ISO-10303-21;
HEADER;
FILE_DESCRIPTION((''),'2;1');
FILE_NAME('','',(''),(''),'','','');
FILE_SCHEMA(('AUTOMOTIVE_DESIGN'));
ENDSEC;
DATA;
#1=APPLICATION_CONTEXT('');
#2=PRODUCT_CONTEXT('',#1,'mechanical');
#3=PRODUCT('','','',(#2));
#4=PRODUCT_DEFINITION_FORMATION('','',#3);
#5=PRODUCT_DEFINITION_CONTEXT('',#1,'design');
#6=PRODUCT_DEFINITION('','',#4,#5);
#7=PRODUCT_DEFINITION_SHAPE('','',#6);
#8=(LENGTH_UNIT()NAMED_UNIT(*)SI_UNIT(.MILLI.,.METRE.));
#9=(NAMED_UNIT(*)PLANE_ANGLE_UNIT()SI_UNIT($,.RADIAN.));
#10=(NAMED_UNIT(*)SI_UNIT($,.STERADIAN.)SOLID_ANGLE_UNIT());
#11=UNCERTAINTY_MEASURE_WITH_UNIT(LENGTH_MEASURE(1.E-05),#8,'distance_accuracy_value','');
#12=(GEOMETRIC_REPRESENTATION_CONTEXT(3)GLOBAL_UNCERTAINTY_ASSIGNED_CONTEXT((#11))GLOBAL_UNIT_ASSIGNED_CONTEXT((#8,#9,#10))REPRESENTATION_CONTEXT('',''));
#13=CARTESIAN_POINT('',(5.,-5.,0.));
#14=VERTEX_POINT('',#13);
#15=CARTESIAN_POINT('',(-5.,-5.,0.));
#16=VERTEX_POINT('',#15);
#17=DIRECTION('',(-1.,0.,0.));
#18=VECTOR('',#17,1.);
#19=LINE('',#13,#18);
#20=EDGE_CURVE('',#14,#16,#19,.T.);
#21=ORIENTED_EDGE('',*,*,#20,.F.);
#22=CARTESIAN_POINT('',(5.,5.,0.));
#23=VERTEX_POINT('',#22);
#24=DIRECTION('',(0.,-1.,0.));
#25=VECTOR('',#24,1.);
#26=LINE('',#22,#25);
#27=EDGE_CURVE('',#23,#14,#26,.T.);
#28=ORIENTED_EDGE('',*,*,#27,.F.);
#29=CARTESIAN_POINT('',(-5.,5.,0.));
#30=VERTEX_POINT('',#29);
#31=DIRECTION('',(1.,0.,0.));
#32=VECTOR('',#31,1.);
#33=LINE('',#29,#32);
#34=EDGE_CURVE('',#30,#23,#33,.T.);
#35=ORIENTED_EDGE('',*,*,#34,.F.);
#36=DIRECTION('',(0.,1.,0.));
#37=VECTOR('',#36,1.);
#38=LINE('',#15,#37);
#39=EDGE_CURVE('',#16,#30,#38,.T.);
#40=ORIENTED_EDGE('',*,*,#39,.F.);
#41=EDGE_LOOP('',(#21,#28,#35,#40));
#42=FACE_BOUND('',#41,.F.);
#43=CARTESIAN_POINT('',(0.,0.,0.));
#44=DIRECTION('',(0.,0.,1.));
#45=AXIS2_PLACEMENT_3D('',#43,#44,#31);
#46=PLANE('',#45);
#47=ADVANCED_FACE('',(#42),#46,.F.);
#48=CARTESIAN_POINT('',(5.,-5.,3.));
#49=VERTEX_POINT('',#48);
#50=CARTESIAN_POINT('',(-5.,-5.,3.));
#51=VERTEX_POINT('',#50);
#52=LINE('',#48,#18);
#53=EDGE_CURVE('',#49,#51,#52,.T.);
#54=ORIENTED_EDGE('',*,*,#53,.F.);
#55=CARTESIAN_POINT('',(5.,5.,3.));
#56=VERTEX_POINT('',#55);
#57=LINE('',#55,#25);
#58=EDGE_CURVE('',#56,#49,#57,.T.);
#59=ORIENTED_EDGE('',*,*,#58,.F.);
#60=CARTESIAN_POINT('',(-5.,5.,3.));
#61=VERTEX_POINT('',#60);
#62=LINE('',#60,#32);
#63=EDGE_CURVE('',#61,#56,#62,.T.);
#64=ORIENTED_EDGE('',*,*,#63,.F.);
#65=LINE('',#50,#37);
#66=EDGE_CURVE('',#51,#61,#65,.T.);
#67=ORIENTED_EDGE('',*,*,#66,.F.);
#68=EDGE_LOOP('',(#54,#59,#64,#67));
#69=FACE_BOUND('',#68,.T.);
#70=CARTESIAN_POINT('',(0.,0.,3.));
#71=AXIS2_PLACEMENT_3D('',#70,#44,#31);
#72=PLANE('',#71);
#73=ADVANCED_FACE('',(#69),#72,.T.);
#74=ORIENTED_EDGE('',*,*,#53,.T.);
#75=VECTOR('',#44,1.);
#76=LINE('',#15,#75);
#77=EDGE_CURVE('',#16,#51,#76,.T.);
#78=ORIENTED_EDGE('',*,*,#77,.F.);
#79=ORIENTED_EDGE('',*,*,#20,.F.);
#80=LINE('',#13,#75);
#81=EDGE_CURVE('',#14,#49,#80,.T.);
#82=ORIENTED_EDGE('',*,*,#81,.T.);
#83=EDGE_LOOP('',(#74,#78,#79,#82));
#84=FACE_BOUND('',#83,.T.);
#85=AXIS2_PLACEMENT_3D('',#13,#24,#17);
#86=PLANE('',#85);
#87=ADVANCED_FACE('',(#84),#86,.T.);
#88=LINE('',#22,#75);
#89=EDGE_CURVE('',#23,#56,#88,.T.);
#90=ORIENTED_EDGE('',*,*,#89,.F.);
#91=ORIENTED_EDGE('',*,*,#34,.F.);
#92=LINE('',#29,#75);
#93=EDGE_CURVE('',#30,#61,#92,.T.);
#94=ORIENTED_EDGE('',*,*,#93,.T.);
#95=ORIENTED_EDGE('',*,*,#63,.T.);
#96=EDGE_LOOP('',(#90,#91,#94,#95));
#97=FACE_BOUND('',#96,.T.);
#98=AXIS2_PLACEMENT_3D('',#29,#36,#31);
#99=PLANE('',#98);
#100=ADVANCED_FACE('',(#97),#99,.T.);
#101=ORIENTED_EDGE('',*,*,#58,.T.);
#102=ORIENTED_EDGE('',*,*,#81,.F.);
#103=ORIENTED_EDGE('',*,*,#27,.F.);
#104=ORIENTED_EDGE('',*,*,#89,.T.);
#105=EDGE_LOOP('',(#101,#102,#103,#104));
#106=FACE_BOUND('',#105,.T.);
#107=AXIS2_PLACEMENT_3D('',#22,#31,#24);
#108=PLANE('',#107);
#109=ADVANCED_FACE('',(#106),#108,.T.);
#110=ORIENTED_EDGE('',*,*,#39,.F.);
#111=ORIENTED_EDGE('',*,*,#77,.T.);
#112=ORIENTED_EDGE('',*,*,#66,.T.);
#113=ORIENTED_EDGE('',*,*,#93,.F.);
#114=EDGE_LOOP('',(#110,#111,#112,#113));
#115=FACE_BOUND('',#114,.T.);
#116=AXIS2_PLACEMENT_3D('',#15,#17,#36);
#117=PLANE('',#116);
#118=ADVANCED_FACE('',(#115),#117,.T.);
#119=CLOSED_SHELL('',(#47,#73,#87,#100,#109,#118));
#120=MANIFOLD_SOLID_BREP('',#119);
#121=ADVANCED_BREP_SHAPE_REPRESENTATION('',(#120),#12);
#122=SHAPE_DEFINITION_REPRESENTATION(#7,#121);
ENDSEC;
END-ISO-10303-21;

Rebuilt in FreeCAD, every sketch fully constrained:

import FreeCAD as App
import Part
import Sketcher
Q = App.Units.Quantity

doc = App.newDocument("Part")
body = doc.addObject("PartDesign::Body", "Body")

# Sketch on XY plane
sketch1 = doc.addObject("Sketcher::SketchObject", "Sketch")
body.addObject(sketch1)
sketch1.AttachmentSupport = (doc.XY_Plane, [""])
sketch1.MapMode = "FlatFace"
sketch1.addGeometry([
    Part.LineSegment(App.Vector(-5, -5, 0), App.Vector(5, -5, 0)),
    Part.LineSegment(App.Vector(5, -5, 0), App.Vector(5, 5, 0)),
    Part.LineSegment(App.Vector(5, 5, 0), App.Vector(-5, 5, 0)),
    Part.LineSegment(App.Vector(-5, 5, 0), App.Vector(-5, -5, 0)),
], False)
sketch1.addConstraint([
    Sketcher.Constraint("Coincident", 0, 2, 1, 1),
    Sketcher.Constraint("Coincident", 1, 2, 2, 1),
    Sketcher.Constraint("Coincident", 2, 2, 3, 1),
    Sketcher.Constraint("Coincident", 3, 2, 0, 1),
    Sketcher.Constraint("Horizontal", 0),
    Sketcher.Constraint("Vertical", 1),
    Sketcher.Constraint("Horizontal", 2),
    Sketcher.Constraint("Vertical", 3),
    Sketcher.Constraint("Symmetric", 0, 2, 2, 2, -1, 1),
    Sketcher.Constraint("Equal", 2, 1),
    Sketcher.Constraint("DistanceX", 0, 1, 0, 2, Q("10 mm")),
])
pad1 = doc.addObject("PartDesign::Pad", "Pad")
body.addObject(pad1)
pad1.Profile = sketch1
pad1.Length = 3

doc.recompute()
